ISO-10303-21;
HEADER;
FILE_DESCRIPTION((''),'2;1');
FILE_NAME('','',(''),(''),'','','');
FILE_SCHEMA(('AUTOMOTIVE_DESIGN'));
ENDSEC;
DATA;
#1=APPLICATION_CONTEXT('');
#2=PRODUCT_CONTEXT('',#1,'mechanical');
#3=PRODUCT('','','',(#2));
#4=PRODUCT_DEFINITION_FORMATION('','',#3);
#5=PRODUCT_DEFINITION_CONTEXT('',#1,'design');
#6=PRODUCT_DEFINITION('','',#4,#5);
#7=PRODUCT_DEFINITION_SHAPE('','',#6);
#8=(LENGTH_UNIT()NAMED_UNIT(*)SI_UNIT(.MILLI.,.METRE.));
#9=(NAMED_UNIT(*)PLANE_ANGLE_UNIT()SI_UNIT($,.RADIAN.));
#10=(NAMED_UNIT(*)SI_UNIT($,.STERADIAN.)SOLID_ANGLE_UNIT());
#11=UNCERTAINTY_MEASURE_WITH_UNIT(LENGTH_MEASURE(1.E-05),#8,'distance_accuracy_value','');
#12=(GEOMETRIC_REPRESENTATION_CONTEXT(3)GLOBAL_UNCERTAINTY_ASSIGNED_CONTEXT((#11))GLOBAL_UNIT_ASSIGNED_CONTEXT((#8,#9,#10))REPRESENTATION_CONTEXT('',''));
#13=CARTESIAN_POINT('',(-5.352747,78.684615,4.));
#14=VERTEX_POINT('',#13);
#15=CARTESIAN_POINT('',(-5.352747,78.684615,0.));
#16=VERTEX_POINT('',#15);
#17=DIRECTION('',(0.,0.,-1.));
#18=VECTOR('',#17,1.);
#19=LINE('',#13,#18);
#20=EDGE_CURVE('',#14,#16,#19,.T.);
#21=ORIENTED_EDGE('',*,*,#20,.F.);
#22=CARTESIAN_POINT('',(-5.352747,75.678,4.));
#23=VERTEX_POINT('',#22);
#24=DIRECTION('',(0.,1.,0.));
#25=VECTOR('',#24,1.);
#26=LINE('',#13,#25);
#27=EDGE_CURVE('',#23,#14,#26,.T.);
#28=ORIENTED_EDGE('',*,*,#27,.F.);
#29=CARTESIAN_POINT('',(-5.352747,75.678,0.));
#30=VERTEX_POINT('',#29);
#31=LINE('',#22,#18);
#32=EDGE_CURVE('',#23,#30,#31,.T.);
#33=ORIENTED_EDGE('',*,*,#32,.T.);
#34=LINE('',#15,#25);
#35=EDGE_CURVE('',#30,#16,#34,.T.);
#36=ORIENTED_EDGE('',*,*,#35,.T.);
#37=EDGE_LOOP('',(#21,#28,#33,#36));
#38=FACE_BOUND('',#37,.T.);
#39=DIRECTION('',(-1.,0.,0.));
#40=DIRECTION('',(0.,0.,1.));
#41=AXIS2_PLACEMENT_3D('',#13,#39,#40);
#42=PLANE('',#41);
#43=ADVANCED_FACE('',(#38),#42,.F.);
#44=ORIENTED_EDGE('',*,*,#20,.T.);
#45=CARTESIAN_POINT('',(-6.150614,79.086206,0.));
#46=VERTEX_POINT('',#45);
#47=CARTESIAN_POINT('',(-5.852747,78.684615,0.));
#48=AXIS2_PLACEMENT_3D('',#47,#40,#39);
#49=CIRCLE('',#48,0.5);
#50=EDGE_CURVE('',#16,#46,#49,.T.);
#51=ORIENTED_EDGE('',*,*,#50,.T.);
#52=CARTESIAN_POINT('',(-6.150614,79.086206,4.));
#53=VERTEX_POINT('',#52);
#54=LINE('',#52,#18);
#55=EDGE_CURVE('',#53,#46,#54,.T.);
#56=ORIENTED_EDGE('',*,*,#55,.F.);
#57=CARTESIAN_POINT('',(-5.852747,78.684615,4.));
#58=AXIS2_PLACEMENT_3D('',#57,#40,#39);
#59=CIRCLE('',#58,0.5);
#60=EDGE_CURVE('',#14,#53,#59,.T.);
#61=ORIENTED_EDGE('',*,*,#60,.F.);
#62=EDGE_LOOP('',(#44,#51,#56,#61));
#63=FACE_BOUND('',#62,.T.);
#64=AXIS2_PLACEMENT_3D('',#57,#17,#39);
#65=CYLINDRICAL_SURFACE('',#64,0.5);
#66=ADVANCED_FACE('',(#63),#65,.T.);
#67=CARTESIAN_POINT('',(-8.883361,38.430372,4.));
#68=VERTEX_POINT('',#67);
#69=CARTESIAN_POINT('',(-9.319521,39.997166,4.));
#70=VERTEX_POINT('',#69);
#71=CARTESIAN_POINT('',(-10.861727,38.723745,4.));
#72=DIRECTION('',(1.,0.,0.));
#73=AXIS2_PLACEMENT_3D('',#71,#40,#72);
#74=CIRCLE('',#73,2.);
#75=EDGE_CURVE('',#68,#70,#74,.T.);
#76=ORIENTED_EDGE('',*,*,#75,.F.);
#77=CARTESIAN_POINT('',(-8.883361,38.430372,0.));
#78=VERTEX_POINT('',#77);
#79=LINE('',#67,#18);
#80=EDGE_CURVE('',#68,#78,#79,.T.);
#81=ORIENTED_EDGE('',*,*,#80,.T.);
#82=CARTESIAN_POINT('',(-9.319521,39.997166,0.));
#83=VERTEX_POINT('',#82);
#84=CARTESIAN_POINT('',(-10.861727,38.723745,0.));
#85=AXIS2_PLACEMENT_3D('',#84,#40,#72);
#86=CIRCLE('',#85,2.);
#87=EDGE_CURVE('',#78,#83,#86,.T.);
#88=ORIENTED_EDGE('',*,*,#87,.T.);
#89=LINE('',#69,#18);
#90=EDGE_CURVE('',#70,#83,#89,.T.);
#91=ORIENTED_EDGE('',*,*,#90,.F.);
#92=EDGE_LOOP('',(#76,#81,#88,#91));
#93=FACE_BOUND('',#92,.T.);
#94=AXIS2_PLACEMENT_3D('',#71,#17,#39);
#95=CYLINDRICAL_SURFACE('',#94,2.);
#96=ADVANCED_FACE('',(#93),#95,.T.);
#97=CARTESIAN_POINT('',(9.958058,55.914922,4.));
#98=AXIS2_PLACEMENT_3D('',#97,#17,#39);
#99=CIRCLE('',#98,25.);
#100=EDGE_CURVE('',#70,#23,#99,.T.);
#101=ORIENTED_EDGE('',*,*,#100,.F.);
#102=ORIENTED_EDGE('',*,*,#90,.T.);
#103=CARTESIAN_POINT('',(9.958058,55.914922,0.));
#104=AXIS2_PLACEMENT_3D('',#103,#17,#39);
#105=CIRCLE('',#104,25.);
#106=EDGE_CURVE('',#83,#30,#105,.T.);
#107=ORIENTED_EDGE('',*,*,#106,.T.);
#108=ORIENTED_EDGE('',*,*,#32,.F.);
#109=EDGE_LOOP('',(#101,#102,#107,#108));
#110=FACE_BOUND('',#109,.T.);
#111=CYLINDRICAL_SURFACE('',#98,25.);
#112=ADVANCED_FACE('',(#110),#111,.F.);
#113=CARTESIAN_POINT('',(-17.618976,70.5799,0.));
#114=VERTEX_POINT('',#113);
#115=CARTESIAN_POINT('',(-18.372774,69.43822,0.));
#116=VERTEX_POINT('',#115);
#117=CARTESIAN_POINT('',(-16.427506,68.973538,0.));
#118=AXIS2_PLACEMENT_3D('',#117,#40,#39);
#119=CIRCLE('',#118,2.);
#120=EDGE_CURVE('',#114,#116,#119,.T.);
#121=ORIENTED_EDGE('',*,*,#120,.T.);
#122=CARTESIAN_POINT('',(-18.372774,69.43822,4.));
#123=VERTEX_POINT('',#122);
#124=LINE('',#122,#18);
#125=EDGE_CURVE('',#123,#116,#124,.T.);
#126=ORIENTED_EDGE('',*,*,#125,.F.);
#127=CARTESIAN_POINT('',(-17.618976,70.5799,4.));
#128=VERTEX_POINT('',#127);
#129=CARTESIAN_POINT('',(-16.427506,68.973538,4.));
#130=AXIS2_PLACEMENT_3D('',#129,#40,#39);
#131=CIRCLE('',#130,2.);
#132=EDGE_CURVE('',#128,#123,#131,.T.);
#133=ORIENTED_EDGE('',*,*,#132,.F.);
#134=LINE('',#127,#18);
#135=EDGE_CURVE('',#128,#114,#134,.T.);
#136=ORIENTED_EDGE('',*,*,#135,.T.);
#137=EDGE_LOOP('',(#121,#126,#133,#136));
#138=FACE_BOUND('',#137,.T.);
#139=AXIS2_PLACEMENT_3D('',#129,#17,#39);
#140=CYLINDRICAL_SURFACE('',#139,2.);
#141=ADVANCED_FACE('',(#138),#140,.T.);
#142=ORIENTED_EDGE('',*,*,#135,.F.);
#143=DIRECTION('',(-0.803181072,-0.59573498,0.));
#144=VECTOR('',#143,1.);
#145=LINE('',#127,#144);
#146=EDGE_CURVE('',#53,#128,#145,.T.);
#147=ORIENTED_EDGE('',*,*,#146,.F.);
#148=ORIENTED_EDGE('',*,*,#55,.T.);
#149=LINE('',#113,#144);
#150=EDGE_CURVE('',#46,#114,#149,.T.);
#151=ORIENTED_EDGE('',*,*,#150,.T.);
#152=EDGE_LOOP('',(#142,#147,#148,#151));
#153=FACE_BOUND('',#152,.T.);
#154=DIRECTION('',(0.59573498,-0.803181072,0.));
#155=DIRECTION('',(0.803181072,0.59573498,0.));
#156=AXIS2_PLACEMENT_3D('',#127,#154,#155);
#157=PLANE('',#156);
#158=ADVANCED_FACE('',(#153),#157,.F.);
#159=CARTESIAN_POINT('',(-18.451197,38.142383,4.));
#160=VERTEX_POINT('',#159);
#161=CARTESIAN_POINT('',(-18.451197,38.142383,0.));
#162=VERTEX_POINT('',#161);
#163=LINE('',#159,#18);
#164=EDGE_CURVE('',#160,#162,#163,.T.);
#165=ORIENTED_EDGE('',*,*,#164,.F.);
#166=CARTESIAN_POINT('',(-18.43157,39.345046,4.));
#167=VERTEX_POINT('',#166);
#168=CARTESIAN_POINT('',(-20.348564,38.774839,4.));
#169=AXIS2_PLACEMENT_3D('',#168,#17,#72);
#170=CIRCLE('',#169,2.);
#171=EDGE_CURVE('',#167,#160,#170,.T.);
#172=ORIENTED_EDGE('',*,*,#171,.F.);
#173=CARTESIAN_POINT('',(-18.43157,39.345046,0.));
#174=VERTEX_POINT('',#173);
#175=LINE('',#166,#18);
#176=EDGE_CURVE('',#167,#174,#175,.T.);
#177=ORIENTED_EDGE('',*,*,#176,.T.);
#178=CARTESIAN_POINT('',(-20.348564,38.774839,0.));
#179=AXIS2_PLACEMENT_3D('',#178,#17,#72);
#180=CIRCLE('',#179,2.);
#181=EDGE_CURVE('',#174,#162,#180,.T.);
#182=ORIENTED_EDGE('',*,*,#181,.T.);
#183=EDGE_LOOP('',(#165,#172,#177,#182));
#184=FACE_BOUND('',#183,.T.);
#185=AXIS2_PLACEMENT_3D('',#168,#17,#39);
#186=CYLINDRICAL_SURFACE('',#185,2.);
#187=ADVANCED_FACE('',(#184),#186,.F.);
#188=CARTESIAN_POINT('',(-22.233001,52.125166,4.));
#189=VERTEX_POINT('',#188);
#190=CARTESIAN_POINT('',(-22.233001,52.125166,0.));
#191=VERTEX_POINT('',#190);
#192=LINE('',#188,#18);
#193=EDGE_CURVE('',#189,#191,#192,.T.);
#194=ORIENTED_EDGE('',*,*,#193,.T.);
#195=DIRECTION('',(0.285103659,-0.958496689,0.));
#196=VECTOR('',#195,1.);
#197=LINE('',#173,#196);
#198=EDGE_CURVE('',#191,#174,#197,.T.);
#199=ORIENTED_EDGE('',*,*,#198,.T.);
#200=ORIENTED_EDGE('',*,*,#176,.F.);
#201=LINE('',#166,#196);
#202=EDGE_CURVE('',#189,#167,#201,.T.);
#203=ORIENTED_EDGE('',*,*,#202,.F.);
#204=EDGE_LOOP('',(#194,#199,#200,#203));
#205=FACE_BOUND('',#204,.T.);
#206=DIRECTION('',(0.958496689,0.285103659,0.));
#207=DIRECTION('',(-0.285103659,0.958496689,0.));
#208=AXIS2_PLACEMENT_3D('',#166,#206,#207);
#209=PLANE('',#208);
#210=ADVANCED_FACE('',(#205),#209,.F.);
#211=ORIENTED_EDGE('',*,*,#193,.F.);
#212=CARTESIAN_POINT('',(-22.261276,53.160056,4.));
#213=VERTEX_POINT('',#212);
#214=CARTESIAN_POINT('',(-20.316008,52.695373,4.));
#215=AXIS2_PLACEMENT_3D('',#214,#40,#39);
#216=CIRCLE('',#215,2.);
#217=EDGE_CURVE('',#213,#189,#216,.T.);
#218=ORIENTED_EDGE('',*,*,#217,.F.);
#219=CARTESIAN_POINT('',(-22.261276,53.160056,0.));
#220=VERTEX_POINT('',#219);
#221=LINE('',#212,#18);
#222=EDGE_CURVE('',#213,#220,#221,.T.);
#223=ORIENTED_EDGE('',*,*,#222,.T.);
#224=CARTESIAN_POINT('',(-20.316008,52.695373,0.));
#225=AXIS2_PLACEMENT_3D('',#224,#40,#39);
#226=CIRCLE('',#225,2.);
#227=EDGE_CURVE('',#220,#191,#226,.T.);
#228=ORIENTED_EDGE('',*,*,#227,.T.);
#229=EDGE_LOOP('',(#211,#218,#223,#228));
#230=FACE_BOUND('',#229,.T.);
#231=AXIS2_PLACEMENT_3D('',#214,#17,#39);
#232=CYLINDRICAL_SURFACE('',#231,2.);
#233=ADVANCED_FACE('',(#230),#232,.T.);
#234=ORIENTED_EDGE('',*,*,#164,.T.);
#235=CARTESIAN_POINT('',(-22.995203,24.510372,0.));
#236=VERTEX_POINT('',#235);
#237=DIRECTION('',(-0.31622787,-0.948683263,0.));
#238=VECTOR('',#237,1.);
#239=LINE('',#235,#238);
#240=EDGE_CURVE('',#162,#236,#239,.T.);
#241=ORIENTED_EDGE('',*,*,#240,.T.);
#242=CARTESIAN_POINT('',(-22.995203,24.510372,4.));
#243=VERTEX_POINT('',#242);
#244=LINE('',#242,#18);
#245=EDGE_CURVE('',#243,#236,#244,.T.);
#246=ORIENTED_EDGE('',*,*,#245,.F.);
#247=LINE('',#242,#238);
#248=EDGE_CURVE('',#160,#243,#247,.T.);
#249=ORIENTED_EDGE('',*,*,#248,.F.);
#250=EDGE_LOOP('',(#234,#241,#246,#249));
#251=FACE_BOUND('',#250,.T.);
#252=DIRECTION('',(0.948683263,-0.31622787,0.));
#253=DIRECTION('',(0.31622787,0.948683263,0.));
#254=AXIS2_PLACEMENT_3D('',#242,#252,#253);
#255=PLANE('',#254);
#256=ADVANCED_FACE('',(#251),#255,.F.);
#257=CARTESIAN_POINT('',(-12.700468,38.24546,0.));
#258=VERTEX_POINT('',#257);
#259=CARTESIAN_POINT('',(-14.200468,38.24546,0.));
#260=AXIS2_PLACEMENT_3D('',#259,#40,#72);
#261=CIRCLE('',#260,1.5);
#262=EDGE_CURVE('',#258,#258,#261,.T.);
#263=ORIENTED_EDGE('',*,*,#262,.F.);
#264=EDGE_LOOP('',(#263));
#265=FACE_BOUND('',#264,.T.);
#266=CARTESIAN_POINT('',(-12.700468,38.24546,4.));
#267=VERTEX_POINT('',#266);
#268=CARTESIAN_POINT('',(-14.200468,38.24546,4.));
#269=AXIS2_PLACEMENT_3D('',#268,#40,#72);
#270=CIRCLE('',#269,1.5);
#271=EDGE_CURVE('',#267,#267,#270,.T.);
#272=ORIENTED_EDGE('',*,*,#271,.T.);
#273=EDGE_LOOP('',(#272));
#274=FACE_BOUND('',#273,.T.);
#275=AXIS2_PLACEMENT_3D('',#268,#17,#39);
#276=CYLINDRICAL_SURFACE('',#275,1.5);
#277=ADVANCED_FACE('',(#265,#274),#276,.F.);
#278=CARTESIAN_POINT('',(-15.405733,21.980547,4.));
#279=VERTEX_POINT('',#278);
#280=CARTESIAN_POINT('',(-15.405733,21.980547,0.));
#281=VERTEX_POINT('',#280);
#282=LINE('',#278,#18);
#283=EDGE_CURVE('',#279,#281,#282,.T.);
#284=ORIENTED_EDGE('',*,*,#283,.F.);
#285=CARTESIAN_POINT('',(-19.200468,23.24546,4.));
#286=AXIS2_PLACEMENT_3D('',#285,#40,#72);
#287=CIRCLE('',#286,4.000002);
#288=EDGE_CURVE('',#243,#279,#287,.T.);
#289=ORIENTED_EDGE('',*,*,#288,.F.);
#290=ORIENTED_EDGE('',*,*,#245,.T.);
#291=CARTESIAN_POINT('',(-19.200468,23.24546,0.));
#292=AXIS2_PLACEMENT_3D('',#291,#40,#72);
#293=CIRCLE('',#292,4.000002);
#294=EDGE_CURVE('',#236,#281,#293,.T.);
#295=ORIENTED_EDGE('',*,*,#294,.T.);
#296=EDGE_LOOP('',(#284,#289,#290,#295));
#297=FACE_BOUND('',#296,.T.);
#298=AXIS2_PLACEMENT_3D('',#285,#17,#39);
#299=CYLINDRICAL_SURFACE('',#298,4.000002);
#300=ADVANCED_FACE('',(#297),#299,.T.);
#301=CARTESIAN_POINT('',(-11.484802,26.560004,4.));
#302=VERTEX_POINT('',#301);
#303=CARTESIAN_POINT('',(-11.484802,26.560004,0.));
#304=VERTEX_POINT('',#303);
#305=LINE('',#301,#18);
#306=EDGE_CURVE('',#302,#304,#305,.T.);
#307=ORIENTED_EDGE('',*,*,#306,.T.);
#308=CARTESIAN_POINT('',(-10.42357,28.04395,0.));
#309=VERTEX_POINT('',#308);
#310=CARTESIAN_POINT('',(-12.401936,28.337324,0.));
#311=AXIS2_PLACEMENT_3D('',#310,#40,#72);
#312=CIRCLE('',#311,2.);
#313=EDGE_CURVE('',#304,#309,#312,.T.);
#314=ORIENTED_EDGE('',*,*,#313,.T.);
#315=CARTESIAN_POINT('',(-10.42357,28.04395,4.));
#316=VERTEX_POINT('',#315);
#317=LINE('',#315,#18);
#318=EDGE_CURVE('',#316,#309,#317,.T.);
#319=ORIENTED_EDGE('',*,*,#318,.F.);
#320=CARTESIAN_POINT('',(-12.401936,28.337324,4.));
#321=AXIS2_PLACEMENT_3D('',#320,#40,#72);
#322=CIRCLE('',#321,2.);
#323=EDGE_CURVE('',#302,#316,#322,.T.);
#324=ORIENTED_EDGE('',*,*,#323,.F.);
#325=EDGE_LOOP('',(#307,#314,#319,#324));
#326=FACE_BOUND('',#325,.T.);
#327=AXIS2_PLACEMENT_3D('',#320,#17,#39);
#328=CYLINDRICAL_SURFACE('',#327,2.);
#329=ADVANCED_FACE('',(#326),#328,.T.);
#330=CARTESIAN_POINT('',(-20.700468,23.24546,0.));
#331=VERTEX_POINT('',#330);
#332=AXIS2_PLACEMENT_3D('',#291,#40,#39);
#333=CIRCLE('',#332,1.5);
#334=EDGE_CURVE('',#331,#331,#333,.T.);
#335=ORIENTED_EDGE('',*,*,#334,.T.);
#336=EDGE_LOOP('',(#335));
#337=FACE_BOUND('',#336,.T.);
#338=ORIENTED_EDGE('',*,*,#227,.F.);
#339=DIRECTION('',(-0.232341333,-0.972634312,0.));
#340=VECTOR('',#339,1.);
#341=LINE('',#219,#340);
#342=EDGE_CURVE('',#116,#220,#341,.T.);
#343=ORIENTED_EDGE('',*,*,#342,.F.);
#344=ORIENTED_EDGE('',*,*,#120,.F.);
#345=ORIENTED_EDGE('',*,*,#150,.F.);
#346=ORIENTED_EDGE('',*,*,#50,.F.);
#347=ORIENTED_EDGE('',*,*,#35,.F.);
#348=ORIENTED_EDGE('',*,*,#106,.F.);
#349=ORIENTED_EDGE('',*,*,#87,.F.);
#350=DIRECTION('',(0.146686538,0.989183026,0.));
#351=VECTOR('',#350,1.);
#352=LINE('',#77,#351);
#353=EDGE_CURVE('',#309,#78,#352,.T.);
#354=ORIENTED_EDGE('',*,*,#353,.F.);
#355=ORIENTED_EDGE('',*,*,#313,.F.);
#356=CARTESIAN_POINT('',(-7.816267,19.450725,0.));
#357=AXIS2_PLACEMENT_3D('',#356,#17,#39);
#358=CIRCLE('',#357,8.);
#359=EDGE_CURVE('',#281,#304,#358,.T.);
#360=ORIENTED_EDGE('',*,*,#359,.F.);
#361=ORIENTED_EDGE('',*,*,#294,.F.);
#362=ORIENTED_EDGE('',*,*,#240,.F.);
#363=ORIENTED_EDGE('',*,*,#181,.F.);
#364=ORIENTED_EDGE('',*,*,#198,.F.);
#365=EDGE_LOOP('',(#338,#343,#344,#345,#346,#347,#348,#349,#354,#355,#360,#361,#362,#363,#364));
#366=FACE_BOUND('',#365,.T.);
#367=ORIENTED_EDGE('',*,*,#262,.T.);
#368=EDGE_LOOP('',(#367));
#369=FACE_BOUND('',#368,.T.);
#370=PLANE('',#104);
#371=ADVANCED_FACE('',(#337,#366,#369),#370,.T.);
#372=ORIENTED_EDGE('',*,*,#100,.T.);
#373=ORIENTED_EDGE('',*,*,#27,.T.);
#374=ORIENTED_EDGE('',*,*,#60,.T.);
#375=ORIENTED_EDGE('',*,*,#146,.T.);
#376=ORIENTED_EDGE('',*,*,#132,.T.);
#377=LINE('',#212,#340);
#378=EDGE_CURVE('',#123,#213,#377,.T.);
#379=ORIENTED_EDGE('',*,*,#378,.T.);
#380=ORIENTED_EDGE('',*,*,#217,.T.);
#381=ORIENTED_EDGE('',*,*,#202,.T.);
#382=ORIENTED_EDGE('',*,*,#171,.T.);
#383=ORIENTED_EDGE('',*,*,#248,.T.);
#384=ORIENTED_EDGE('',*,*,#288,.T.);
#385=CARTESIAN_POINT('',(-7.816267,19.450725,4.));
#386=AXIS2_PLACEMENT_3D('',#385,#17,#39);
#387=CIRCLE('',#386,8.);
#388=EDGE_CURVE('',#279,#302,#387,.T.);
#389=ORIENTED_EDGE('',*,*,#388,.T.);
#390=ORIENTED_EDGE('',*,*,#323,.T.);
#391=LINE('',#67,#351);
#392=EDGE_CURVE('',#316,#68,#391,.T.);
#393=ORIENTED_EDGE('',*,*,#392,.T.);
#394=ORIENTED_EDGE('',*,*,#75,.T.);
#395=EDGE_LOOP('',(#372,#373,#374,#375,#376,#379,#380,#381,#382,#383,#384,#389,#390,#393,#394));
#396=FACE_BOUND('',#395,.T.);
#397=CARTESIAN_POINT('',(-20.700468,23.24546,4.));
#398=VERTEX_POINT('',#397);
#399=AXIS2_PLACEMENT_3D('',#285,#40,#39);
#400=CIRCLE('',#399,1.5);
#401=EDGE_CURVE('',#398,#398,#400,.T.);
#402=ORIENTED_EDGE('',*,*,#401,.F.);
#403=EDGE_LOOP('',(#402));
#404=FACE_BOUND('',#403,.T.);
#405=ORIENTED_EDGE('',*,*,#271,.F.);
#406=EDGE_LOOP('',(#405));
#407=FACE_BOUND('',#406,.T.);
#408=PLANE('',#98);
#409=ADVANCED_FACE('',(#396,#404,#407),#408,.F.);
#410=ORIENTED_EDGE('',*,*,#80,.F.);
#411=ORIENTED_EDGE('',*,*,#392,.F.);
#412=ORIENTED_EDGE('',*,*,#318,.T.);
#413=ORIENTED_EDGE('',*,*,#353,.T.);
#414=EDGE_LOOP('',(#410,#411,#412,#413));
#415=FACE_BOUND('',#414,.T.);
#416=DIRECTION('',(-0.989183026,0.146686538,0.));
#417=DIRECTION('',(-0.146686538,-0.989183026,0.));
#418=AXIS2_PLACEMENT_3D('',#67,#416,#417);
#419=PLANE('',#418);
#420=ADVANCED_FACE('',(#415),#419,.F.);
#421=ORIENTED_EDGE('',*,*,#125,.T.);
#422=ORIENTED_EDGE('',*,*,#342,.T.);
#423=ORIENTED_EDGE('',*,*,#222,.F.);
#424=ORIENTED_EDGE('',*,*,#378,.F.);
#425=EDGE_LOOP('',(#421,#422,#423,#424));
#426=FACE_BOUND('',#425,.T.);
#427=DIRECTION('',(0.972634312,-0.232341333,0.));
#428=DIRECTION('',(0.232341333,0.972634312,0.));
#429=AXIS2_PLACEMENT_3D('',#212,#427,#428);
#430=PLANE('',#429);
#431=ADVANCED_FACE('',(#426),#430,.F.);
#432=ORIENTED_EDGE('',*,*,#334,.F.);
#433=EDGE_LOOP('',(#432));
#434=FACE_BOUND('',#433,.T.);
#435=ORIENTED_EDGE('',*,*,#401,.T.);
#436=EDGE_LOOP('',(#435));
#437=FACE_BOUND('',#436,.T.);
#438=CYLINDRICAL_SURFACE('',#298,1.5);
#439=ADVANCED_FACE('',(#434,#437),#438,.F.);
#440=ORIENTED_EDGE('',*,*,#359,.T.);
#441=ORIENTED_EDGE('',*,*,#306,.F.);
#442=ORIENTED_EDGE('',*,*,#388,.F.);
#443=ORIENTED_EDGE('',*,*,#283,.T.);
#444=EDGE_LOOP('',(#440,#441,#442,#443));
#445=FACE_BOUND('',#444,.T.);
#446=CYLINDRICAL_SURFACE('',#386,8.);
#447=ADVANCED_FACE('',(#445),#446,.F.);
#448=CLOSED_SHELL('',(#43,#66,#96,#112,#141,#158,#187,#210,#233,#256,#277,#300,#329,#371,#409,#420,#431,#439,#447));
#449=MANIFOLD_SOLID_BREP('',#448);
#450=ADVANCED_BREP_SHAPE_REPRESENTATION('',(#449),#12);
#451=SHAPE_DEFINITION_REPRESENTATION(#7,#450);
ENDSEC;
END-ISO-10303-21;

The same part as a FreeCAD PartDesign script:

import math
import FreeCAD as App
import Part
import Sketcher

V = App.Vector
Q = App.Units.Quantity

doc = App.newDocument("Part")
body = doc.addObject("PartDesign::Body", "Body")

sketch1 = body.newObject("Sketcher::SketchObject", "Sketch")
sketch1.AttachmentSupport = (doc.getObject("XY_Plane"), [""])
sketch1.MapMode = "FlatFace"
sketch1.addGeometry([
    Part.LineSegment(V(-10.4, 28, 0), V(-8.9, 38.4, 0)),
    Part.ArcOfCircle(Part.Circle(V(-10.9, 38.7, 0), V(0, 0, 1), 2), math.radians(-8), math.radians(40)),
    Part.ArcOfCircle(Part.Circle(V(10, 55.9, 0), V(0, 0, 1), 25), math.radians(128), math.radians(220)),
    Part.LineSegment(V(-5.4, 75.7, 0), V(-5.4, 78.7, 0)),
    Part.ArcOfCircle(Part.Circle(V(-5.9, 78.7, 0), V(0, 0, 1), 0.5), math.radians(0), math.radians(127)),
    Part.LineSegment(V(-6.2, 79.1, 0), V(-17.6, 70.6, 0)),
    Part.ArcOfCircle(Part.Circle(V(-16.4, 69, 0), V(0, 0, 1), 2), math.radians(127), math.radians(167)),
    Part.LineSegment(V(-18.4, 69.4, 0), V(-22.3, 53.2, 0)),
    Part.ArcOfCircle(Part.Circle(V(-20.3, 52.7, 0), V(0, 0, 1), 2), math.radians(167), math.radians(197)),
    Part.LineSegment(V(-22.2, 52.1, 0), V(-18.4, 39.3, 0)),
    Part.ArcOfCircle(Part.Circle(V(-20.3, 38.8, 0), V(0, 0, 1), 2), math.radians(-18), math.radians(17)),
    Part.LineSegment(V(-18.5, 38.1, 0), V(-23, 24.5, 0)),
    Part.ArcOfCircle(Part.Circle(V(-19.2, 23.2, 0), V(0, 0, 1), 4), math.radians(162), math.radians(342)),
    Part.ArcOfCircle(Part.Circle(V(-7.8, 19.5, 0), V(0, 0, 1), 8), math.radians(117), math.radians(162)),
    Part.ArcOfCircle(Part.Circle(V(-12.4, 28.3, 0), V(0, 0, 1), 2), math.radians(-63), math.radians(-8)),
    Part.Circle(V(-19.2, 23.2, 0), V(0, 0, 1), 1.5),
    Part.Circle(V(-14.2, 38.2, 0), V(0, 0, 1), 1.5),
], False)
sketch1.addConstraint([
    Sketcher.Constraint("Tangent", 0, 2, 1, 1),
    Sketcher.Constraint("Tangent", 1, 2, 2, 2),
    Sketcher.Constraint("Coincident", 2, 1, 3, 1),
    Sketcher.Constraint("Tangent", 3, 2, 4, 1),
    Sketcher.Constraint("Tangent", 4, 2, 5, 1),
    Sketcher.Constraint("Tangent", 5, 2, 6, 1),
    Sketcher.Constraint("Tangent", 6, 2, 7, 1),
    Sketcher.Constraint("Tangent", 7, 2, 8, 1),
    Sketcher.Constraint("Tangent", 8, 2, 9, 1),
    Sketcher.Constraint("Tangent", 9, 2, 10, 2),
    Sketcher.Constraint("Tangent", 10, 1, 11, 1),
    Sketcher.Constraint("Tangent", 11, 2, 12, 1),
    Sketcher.Constraint("Tangent", 12, 2, 13, 2),
    Sketcher.Constraint("Tangent", 13, 1, 14, 1),
    Sketcher.Constraint("Tangent", 14, 2, 0, 1),
    Sketcher.Constraint("Vertical", 3),
    Sketcher.Constraint("Coincident", 15, 3, 12, 3),
    Sketcher.Constraint("Equal", 1, 6),
    Sketcher.Constraint("Equal", 6, 8),
    Sketcher.Constraint("Equal", 8, 10),
    Sketcher.Constraint("Equal", 10, 14),
    Sketcher.Constraint("Equal", 15, 16),
    Sketcher.Constraint("Diameter", 15, Q("3 mm")),
    Sketcher.Constraint("Radius", 1, Q("2 mm")),
    Sketcher.Constraint("Radius", 2, Q("25 mm")),
    Sketcher.Constraint("Radius", 12, Q("4.000002 mm")),
    Sketcher.Constraint("Radius", 13, Q("8 mm")),
    Sketcher.Constraint("Radius", 4, Q("0.5 mm")),
    Sketcher.Constraint("DistanceX", 12, 3, 16, 3, Q("5 mm")),
    Sketcher.Constraint("DistanceY", 12, 3, 16, 3, Q("15 mm")),
    Sketcher.Constraint("Distance", 0, Q("10.5 mm")),
    Sketcher.Constraint("DistanceY", -1, 1, 2, 1, Q("75.678 mm")),
    Sketcher.Constraint("DistanceX", 8, 2, -1, 1, Q("22.233001 mm")),
    Sketcher.Constraint("DistanceY", 0, 2, 8, 3, Q("14.265001 mm")),
    Sketcher.Constraint("DistanceY", -1, 1, 5, 2, Q("70.5799 mm")),
    Sketcher.Constraint("DistanceX", 8, 3, 6, 3, Q("3.888502 mm")),
    Sketcher.Constraint("DistanceY", 10, 3, 6, 3, Q("30.198699 mm")),
    Sketcher.Constraint("DistanceX", 12, 3, 13, 3, Q("11.384201 mm")),
    Sketcher.Constraint("DistanceY", 13, 3, 14, 3, Q("8.886599 mm")),
    Sketcher.Constraint("DistanceX", 6, 2, 5, 2, Q("0.753799 mm")),
    Sketcher.Constraint("DistanceY", 1, 3, 9, 2, Q("0.621301 mm")),
    Sketcher.Constraint("DistanceX", 12, 3, 14, 2, Q("8.776898 mm")),
    Sketcher.Constraint("Distance", 7, Q("16.736161 mm")),
    Sketcher.Constraint("DistanceY", 3, 1, 3, 2, Q("3.006616 mm")),
    Sketcher.Constraint("DistanceY", -1, 1, 2, 3, Q("55.914922 mm")),
])
pad1 = body.newObject("PartDesign::Pad", "Pad")
pad1.Profile = sketch1
pad1.Length = 4

doc.recompute()
